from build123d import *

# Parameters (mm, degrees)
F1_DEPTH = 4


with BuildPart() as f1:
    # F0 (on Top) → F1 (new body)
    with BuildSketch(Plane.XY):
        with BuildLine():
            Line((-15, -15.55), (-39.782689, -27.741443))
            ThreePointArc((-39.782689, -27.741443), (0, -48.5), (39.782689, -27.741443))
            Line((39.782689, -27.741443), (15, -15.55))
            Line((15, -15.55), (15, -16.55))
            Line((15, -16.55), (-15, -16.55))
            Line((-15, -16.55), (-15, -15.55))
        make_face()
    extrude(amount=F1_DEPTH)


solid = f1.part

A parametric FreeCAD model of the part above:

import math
import FreeCAD as App
import Part
import Sketcher
from FreeCAD import Vector
Q = App.Units.Quantity

doc = App.newDocument("Part")
body = doc.addObject("PartDesign::Body", "Body")

# Sketch on XY plane
sketch1 = body.newObject("Sketcher::SketchObject", "Sketch")
sketch1.AttachmentSupport = (doc.getObject("XY_Plane"), [""])
sketch1.MapMode = "FlatFace"
sketch1.addGeometry(Part.LineSegment(Vector(-15, -15.6, 0), Vector(-39.8, -27.7, 0)), False)
sketch1.addGeometry(Part.ArcOfCircle(Part.Circle(Vector(0, 0, 0), Vector(0, 0, 1), 48.5), math.radians(-145), math.radians(-35)), False)
sketch1.addGeometry(Part.LineSegment(Vector(39.8, -27.7, 0), Vector(15, -15.6, 0)), False)
sketch1.addGeometry(Part.LineSegment(Vector(15, -15.6, 0), Vector(15, -16.6, 0)), False)
sketch1.addGeometry(Part.LineSegment(Vector(15, -16.6, 0), Vector(-15, -16.6, 0)), False)
sketch1.addGeometry(Part.LineSegment(Vector(-15, -16.6, 0), Vector(-15, -15.6, 0)), False)
sketch1.addConstraint(Sketcher.Constraint("Coincident", 0, 2, 1, 1))
sketch1.addConstraint(Sketcher.Constraint("Coincident", 1, 2, 2, 1))
sketch1.addConstraint(Sketcher.Constraint("Coincident", 2, 2, 3, 1))
sketch1.addConstraint(Sketcher.Constraint("Coincident", 3, 2, 4, 1))
sketch1.addConstraint(Sketcher.Constraint("Coincident", 4, 2, 5, 1))
sketch1.addConstraint(Sketcher.Constraint("Coincident", 5, 2, 0, 1))
sketch1.addConstraint(Sketcher.Constraint("Vertical", 3))
sketch1.addConstraint(Sketcher.Constraint("Horizontal", 4))
sketch1.addConstraint(Sketcher.Constraint("Vertical", 5))
sketch1.addConstraint(Sketcher.Constraint("Coincident", 1, 3, -1, 1))
sketch1.addConstraint(Sketcher.Constraint("Symmetric", 2, 2, 5, 2, -2))
sketch1.addConstraint(Sketcher.Constraint("Horizontal", 0, 2, 1, 2))
sketch1.addConstraint(Sketcher.Constraint("Radius", 1, Q("48.5 mm")))
sketch1.addConstraint(Sketcher.Constraint("DistanceX", 4, 2, 4, 1, Q("30 mm")))
sketch1.addConstraint(Sketcher.Constraint("DistanceY", 3, 2, 3, 1, Q("1 mm")))
sketch1.addConstraint(Sketcher.Constraint("DistanceY", 2, 2, -1, 1, Q("15.55 mm")))
sketch1.addConstraint(Sketcher.Constraint("Distance", 0, Q("27.619069 mm")))
pad1 = body.newObject("PartDesign::Pad", "Pad")
pad1.Profile = sketch1
pad1.Length = 4

doc.recompute()
